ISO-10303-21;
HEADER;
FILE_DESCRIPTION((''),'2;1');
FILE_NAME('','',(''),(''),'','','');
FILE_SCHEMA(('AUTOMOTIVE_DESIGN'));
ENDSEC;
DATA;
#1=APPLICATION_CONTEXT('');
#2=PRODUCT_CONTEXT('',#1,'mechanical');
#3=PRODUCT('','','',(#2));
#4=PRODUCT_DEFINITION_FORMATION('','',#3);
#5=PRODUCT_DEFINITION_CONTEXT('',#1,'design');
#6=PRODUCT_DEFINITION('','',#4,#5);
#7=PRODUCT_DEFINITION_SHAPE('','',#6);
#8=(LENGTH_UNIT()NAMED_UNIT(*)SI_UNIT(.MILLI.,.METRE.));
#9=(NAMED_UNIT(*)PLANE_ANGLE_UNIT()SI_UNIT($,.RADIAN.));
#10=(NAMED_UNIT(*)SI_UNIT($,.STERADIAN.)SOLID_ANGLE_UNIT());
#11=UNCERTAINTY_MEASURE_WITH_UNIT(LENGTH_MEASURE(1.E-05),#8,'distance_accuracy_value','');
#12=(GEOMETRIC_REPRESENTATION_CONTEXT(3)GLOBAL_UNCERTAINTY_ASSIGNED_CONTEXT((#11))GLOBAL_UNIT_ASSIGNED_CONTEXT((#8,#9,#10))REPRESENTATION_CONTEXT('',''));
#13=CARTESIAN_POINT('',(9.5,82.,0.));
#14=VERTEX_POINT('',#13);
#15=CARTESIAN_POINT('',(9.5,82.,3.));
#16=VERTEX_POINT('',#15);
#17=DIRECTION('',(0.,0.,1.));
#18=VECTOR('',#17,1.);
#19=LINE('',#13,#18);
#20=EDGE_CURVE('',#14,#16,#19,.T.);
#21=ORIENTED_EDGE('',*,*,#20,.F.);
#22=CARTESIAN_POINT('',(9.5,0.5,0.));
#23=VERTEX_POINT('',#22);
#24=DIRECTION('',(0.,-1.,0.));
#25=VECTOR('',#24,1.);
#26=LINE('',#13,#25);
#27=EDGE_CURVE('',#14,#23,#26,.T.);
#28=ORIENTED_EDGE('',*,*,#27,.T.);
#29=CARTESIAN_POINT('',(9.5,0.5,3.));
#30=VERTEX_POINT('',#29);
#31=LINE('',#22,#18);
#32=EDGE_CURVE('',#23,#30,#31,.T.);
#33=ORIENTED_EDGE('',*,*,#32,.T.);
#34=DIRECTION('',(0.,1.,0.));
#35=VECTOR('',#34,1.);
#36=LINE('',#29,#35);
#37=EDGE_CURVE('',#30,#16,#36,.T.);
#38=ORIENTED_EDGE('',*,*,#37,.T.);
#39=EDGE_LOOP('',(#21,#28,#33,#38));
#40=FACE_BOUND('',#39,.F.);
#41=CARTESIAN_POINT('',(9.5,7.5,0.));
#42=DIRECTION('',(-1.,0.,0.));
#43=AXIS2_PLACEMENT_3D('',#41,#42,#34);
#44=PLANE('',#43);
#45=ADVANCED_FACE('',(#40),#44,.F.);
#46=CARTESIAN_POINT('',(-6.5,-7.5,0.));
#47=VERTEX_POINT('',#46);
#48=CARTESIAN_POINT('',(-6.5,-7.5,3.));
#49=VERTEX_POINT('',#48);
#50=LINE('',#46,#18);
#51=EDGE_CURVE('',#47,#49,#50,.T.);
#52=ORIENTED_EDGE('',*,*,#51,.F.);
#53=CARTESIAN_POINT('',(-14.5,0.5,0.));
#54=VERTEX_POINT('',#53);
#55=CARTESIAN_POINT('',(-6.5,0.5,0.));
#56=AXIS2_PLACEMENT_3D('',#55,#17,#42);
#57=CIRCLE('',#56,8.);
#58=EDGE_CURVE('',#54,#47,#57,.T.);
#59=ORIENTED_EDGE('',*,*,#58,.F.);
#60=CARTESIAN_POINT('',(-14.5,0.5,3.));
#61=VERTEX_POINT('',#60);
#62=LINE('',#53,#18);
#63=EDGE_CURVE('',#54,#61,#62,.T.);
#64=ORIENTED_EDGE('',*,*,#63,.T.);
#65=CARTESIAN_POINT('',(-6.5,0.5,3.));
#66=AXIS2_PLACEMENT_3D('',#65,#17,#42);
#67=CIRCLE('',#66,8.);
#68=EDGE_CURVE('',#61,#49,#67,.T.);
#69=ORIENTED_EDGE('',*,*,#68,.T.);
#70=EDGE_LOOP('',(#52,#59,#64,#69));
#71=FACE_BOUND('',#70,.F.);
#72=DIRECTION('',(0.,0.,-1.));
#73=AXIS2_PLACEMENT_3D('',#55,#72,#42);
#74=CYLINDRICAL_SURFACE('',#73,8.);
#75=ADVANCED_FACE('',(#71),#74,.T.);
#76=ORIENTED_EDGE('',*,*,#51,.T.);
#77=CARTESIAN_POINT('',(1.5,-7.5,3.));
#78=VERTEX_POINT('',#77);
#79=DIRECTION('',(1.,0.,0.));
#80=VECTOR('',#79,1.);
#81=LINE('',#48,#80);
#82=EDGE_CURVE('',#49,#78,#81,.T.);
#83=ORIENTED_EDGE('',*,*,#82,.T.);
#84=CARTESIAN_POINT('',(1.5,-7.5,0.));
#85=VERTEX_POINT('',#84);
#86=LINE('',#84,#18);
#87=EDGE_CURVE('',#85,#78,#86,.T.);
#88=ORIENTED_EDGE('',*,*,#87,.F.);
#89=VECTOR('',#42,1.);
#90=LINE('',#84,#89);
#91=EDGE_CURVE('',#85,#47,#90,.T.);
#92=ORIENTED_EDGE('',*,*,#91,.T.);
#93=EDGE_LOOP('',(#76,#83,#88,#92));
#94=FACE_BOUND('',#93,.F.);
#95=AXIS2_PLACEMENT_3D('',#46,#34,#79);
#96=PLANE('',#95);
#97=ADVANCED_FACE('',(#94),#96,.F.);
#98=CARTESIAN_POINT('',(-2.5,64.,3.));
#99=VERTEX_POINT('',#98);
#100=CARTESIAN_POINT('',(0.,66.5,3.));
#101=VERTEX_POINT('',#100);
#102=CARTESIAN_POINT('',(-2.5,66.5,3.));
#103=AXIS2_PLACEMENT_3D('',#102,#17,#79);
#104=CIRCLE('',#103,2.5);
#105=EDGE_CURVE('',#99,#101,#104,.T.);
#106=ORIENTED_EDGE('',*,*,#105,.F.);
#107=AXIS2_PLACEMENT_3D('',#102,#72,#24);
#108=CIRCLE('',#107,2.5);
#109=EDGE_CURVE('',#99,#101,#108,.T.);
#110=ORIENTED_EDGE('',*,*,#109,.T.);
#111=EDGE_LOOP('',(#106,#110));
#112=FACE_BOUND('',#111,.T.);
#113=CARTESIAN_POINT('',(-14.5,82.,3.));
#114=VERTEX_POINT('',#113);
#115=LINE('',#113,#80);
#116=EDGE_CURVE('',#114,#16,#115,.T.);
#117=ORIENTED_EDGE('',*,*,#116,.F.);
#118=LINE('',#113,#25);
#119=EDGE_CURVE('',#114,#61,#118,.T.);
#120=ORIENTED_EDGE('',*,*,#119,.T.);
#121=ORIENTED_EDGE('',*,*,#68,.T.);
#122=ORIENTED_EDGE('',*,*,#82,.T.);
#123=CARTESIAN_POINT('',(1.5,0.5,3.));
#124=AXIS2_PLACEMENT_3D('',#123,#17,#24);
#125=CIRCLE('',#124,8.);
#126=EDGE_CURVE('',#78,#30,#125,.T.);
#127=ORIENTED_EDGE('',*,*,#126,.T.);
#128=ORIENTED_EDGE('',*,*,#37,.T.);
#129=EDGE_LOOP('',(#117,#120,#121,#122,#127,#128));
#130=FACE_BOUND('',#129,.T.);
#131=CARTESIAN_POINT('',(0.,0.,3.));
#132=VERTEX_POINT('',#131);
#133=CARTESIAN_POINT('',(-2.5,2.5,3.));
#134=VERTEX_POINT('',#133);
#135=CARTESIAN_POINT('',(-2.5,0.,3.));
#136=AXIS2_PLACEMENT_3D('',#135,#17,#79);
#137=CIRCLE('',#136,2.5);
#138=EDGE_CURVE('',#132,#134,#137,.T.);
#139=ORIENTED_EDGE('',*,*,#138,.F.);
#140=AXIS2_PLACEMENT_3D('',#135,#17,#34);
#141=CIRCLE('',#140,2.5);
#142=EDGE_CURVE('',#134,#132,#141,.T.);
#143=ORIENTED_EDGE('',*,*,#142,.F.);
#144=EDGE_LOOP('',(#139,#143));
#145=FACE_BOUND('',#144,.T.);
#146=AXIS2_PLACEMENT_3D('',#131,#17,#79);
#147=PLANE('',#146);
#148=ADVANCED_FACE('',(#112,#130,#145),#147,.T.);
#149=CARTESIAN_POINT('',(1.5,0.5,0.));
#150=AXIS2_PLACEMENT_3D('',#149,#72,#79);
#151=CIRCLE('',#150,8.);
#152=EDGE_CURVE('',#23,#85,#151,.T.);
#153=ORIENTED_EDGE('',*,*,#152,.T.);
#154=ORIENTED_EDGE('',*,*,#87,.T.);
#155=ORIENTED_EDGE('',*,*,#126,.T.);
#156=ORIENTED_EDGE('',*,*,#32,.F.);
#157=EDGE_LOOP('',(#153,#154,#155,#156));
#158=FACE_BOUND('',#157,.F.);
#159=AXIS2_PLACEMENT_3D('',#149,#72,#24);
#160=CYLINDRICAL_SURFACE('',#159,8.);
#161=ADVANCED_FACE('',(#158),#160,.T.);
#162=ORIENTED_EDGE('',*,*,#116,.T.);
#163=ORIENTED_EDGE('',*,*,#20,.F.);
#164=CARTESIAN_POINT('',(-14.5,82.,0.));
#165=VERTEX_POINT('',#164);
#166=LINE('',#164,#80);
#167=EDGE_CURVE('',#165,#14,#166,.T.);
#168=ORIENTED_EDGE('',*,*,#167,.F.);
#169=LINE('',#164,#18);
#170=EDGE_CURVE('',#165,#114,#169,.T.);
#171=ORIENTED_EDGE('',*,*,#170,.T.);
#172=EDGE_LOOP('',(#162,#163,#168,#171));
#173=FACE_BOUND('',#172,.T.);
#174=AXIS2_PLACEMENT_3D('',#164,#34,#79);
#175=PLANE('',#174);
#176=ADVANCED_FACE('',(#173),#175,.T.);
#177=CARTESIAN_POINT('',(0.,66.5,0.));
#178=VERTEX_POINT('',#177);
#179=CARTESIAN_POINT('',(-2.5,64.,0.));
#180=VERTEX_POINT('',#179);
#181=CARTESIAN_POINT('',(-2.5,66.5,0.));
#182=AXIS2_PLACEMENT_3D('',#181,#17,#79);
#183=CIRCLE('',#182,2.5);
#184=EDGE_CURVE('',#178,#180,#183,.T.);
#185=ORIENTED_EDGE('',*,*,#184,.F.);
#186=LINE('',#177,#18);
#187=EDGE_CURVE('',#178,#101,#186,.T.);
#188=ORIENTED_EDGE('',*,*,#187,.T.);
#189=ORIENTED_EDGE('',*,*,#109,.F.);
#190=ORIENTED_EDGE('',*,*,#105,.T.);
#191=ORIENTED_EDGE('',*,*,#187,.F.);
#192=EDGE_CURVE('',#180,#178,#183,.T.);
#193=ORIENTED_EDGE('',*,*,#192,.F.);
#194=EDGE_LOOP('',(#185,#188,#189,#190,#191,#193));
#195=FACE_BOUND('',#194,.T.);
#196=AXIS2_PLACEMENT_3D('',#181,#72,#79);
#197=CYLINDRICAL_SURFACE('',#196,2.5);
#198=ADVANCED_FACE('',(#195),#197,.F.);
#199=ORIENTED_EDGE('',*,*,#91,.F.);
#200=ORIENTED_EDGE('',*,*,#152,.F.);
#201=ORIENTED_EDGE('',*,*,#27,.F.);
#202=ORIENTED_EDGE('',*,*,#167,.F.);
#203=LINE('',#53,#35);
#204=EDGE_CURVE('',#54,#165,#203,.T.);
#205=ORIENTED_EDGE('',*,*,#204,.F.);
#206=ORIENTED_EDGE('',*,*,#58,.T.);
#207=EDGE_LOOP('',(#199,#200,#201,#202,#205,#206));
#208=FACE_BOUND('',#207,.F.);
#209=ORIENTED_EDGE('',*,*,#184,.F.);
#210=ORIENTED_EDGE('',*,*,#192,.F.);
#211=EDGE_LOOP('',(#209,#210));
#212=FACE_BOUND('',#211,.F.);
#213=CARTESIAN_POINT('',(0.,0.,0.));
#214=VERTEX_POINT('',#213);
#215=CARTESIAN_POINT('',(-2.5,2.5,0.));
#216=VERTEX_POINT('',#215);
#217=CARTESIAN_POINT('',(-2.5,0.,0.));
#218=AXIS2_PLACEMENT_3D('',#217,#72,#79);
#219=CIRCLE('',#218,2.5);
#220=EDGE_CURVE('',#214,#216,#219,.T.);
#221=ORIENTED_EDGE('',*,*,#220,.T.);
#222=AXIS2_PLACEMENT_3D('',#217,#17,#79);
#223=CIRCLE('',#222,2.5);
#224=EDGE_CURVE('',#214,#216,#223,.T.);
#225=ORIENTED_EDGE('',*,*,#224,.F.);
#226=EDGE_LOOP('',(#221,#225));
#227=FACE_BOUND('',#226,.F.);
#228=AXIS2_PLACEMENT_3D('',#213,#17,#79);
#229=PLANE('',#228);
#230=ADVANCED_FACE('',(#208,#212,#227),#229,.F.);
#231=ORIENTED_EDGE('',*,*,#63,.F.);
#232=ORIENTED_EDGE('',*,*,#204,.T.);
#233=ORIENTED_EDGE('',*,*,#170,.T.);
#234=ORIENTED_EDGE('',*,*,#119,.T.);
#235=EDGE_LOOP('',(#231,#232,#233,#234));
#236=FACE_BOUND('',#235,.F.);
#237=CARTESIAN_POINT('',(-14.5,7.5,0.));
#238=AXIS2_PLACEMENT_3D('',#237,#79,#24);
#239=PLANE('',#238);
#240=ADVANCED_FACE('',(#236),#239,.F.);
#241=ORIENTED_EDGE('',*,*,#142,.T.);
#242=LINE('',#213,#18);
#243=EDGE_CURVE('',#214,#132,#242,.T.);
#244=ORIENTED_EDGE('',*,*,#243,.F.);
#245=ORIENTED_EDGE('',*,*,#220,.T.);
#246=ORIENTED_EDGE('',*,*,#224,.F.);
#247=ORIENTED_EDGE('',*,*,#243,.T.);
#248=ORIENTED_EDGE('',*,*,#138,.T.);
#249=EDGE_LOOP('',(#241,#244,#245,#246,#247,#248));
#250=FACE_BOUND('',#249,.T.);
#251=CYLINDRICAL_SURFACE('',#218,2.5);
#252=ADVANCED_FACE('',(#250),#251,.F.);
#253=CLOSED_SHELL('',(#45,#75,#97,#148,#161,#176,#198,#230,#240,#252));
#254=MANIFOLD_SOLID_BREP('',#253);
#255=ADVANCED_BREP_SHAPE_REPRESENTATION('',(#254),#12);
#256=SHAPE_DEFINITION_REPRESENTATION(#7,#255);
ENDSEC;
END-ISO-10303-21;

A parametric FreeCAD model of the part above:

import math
import FreeCAD as App
import Part
import Sketcher

V = App.Vector

doc = App.newDocument("Part")
body = doc.addObject("PartDesign::Body", "Body")

# Sketch on XY plane
sketch1 = doc.addObject("Sketcher::SketchObject", "Sketch")
body.addObject(sketch1)
sketch1.AttachmentSupport = (doc.XY_Plane, [""])
sketch1.MapMode = "FlatFace"
sketch1.addGeometry([
    Part.LineSegment(V(-6.5, -7.5, 0), V(1.5, -7.5, 0)),  # 0
    Part.ArcOfCircle(Part.Circle(V(1.5, 0.5, 0), V(0, 0, 1), 8), math.radians(-90), math.radians(0)),  # 1
    Part.LineSegment(V(9.5, 0.5, 0), V(9.5, 82, 0)),  # 2
    Part.LineSegment(V(9.5, 82, 0), V(-14.5, 82, 0)),  # 3
    Part.LineSegment(V(-14.5, 82, 0), V(-14.5, 0.5, 0)),  # 4
    Part.ArcOfCircle(Part.Circle(V(-6.5, 0.5, 0), V(0, 0, 1), 8), math.radians(180), math.radians(270)),  # 5
    Part.Circle(V(-2.5, 0, 0), V(0, 0, 1), 2.5),  # 6
    Part.Circle(V(-2.5, 66.5, 0), V(0, 0, 1), 2.5),  # 7
], False)
sketch1.addConstraint([
    Sketcher.Constraint("Tangent", 0, 2, 1, 1),
    Sketcher.Constraint("Tangent", 1, 2, 2, 1),
    Sketcher.Constraint("Coincident", 2, 2, 3, 1),
    Sketcher.Constraint("Coincident", 3, 2, 4, 1),
    Sketcher.Constraint("Tangent", 4, 2, 5, 1),
    Sketcher.Constraint("Tangent", 5, 2, 0, 1),
    Sketcher.Constraint("Horizontal", 0),
    Sketcher.Constraint("Vertical", 2),
    Sketcher.Constraint("Horizontal", 3),
    Sketcher.Constraint("Vertical", 4),
    Sketcher.Constraint("Equal", 1, 5),
    Sketcher.Constraint("Equal", 6, 7),
    Sketcher.Constraint("PointOnObject", 6, 3, -1),
    Sketcher.Constraint("Vertical", 6, 3, 7, 3),
    Sketcher.Constraint("Diameter", 6, 5.0),
    Sketcher.Constraint("Radius", 1, 8.0),
    Sketcher.Constraint("DistanceX", 0, 1, 0, 2, 8.0),
    Sketcher.Constraint("DistanceY", 2, 1, 2, 2, 81.5),
    Sketcher.Constraint("DistanceX", 6, 3, -1, 1, 2.5),
    Sketcher.Constraint("DistanceY", -1, 1, 2, 2, 82.0),
    Sketcher.Constraint("DistanceX", 6, 3, 1, 3, 4.0),
    Sketcher.Constraint("DistanceY", 1, 3, 7, 3, 66.0),
])
pad1 = doc.addObject("PartDesign::Pad", "Pad")
body.addObject(pad1)
pad1.Profile = sketch1
pad1.Length = 3

doc.recompute()
